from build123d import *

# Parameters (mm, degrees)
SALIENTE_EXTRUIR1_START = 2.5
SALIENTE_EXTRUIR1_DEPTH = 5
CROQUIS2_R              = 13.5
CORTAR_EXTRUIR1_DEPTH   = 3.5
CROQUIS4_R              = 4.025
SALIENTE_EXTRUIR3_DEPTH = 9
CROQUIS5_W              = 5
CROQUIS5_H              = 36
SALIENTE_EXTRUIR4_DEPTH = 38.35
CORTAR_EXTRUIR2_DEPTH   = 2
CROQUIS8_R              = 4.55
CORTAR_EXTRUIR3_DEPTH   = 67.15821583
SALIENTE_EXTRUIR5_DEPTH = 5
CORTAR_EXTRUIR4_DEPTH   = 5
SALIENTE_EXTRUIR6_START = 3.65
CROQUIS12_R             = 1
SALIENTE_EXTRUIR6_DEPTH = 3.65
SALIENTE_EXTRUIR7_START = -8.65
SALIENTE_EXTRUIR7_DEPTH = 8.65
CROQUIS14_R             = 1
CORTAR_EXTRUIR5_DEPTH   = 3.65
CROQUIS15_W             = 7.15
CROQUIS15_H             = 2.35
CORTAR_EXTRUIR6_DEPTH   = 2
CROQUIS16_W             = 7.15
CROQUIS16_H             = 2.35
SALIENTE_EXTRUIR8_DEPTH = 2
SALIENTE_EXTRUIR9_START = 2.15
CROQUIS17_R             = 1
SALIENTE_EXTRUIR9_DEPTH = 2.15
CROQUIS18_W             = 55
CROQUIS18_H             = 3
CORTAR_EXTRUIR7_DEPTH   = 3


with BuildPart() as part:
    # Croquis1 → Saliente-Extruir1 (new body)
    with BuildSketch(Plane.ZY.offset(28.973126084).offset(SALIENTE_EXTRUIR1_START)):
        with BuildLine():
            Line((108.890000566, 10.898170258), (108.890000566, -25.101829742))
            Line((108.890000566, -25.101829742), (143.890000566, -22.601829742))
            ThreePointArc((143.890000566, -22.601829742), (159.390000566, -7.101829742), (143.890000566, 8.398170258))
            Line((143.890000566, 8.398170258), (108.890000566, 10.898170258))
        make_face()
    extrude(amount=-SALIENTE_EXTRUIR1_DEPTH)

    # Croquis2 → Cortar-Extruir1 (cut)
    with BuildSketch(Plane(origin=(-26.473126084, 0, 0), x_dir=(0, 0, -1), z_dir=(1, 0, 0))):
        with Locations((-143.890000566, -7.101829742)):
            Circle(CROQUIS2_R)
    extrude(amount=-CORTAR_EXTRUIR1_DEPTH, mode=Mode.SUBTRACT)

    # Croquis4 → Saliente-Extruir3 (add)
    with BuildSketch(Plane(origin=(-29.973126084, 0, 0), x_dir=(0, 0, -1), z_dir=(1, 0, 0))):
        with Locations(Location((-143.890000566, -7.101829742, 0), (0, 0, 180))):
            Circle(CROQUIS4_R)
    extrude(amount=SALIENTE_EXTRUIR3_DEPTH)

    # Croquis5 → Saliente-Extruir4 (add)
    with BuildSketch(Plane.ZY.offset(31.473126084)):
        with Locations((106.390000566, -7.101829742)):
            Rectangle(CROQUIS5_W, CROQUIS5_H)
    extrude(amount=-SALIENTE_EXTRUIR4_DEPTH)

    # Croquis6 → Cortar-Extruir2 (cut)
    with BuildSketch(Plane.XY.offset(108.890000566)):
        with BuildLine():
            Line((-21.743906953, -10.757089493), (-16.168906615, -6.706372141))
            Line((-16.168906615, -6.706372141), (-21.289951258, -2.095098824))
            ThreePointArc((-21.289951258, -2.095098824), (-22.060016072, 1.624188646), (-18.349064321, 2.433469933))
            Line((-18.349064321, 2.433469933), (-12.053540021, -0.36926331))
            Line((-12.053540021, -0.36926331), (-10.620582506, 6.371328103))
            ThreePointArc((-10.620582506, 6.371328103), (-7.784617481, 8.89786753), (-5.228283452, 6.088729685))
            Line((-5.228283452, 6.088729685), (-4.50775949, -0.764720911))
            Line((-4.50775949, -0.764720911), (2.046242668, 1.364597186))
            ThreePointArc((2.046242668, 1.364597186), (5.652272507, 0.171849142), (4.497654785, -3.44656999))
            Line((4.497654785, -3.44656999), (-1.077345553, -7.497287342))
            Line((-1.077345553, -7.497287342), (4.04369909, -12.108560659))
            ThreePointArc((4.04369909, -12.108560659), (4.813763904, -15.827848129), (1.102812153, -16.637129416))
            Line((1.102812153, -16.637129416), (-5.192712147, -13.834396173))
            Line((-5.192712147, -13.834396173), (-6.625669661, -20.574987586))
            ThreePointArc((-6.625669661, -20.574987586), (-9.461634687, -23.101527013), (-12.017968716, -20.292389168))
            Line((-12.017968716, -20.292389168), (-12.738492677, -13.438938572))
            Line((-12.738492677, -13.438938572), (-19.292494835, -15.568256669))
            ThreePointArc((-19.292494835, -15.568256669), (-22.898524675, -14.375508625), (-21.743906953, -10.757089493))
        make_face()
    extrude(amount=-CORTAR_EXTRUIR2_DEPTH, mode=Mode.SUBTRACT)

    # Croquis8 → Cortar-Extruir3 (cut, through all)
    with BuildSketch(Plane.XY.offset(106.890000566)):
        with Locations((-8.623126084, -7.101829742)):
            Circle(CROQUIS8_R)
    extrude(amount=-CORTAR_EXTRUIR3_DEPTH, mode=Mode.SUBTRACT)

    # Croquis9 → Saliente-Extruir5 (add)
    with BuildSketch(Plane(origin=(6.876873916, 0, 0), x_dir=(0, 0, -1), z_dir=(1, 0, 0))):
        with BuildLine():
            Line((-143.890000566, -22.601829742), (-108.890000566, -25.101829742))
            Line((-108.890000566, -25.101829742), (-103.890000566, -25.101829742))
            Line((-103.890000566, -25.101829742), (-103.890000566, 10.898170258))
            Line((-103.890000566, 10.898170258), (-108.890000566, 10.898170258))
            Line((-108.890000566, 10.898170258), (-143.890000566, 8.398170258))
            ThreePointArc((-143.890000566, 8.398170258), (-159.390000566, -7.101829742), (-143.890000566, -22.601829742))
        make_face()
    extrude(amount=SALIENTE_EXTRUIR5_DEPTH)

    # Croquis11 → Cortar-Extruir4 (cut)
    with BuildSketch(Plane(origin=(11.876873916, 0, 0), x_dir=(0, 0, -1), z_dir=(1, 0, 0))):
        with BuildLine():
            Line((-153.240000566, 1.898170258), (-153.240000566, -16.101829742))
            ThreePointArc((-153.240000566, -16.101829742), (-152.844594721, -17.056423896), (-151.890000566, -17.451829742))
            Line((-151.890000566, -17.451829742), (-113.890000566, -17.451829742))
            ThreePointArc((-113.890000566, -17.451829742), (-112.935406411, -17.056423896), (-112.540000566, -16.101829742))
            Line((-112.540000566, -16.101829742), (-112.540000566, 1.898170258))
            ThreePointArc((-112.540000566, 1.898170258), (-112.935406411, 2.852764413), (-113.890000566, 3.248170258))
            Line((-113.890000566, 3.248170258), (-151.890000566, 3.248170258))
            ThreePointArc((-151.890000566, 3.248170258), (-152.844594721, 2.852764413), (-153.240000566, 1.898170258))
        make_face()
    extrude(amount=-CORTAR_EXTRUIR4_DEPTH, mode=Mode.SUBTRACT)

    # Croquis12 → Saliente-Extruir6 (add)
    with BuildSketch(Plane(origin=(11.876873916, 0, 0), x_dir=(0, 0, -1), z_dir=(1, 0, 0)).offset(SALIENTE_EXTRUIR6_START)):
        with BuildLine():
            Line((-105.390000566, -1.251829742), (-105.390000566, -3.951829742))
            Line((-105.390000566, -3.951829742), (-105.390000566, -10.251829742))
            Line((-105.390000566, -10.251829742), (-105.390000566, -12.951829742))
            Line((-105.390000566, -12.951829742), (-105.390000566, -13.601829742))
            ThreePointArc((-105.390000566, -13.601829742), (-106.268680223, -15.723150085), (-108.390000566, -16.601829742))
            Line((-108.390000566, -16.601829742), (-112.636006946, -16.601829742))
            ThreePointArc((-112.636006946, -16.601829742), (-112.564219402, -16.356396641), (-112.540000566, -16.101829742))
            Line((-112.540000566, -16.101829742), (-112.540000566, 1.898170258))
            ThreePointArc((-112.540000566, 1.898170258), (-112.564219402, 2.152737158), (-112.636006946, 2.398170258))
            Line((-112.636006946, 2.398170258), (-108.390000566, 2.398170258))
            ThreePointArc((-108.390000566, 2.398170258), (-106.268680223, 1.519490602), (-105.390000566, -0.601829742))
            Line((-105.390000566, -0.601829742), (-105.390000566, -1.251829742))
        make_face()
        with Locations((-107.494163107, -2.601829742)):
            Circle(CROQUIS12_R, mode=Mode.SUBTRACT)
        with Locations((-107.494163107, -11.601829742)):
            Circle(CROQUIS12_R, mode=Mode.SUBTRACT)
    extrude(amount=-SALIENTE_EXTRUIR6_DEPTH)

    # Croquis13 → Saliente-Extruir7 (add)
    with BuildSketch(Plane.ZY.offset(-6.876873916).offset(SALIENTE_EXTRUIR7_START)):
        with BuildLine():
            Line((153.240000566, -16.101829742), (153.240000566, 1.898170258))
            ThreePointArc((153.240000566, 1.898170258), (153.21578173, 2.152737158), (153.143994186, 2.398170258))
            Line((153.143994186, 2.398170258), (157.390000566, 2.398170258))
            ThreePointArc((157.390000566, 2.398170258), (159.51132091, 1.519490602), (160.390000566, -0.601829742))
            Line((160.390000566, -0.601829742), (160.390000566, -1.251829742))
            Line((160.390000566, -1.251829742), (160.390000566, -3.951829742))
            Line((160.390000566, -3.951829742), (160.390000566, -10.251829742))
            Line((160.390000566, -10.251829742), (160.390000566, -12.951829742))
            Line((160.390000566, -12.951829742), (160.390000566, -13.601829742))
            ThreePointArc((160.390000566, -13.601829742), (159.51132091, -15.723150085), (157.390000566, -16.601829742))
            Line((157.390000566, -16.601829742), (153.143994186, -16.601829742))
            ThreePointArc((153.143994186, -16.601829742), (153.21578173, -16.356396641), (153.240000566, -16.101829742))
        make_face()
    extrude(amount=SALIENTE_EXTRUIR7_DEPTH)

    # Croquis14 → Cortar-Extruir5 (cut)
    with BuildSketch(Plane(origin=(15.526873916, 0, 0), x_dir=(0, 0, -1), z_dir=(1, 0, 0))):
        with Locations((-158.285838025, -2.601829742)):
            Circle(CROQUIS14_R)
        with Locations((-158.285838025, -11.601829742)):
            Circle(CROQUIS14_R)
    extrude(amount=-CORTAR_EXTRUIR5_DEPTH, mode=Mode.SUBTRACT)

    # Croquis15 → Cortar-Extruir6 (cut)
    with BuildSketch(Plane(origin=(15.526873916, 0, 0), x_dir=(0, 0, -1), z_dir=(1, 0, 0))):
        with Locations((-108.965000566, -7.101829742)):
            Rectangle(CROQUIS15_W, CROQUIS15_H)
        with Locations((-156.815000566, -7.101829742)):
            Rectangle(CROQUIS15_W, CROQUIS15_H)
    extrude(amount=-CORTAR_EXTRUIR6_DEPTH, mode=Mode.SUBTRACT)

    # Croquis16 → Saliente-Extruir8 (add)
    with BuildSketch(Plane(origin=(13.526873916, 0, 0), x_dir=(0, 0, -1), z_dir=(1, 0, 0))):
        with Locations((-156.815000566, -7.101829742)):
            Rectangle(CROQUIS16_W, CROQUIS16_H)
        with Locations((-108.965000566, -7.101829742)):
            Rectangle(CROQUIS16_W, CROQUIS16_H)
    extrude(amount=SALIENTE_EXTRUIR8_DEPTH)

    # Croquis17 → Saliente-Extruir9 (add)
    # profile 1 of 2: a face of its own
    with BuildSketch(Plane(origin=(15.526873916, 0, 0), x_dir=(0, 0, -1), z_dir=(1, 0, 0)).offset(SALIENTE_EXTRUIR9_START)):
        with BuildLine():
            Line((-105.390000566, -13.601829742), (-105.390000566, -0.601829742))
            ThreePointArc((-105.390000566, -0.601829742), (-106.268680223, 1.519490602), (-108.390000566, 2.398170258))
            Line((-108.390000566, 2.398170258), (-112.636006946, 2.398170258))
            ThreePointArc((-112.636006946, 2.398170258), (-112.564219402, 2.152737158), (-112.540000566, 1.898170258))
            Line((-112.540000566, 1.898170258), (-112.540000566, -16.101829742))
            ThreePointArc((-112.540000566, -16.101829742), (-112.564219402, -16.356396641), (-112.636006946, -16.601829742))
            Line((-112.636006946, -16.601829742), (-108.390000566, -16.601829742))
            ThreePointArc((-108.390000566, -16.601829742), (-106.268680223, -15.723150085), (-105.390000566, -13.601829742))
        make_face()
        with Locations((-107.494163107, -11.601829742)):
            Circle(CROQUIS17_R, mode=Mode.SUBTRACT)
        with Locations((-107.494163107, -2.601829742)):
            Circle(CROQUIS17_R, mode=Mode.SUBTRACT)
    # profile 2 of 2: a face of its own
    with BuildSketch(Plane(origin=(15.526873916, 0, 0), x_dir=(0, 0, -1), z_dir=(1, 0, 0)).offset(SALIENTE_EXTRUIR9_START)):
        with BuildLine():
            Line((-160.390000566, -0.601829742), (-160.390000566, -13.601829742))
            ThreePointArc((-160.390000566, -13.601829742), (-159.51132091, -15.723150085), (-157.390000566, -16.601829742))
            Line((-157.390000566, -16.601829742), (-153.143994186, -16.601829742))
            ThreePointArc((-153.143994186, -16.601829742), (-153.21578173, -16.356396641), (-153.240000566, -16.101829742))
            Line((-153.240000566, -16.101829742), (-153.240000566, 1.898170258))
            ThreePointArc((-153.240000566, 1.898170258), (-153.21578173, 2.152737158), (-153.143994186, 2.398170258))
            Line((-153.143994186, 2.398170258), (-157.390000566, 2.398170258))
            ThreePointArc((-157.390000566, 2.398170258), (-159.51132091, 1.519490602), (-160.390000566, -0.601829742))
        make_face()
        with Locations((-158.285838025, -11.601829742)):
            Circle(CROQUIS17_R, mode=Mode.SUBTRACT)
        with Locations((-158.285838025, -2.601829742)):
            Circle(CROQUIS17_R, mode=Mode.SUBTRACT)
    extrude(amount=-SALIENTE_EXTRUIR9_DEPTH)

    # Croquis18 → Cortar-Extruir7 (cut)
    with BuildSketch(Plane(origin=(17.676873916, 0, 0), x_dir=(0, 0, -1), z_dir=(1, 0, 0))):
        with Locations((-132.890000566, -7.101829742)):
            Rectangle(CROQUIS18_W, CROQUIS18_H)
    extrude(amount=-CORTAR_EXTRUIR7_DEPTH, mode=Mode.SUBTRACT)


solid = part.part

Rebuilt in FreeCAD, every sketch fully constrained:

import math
import FreeCAD as App
import Part
import Sketcher

doc = App.newDocument("Part")
body = doc.addObject("PartDesign::Body", "Body")

sketch1 = body.newObject("Sketcher::SketchObject", "Sketch")
sketch1.AttachmentSupport = (doc.getObject("YZ_Plane"), [""])
sketch1.MapMode = "FlatFace"
sketch1.AttachmentOffset = App.Placement(App.Vector(0, 0, -31.473126), App.Rotation())
sketch1.addGeometry(Part.LineSegment(App.Vector(11, 109, 0), App.Vector(-25, 109, 0)), False)
sketch1.addGeometry(Part.LineSegment(App.Vector(-25, 109, 0), App.Vector(-23, 144, 0)), False)
sketch1.addGeometry(Part.ArcOfCircle(Part.Circle(App.Vector(-7, 144, 0), App.Vector(0, 0, 1), 16), math.radians(0), math.radians(180)), False)
sketch1.addGeometry(Part.LineSegment(App.Vector(8, 144, 0), App.Vector(11, 109, 0)), False)
sketch1.addConstraint(Sketcher.Constraint("Coincident", 0, 2, 1, 1))
sketch1.addConstraint(Sketcher.Constraint("Coincident", 1, 2, 2, 2))
sketch1.addConstraint(Sketcher.Constraint("Coincident", 2, 1, 3, 1))
sketch1.addConstraint(Sketcher.Constraint("Coincident", 3, 2, 0, 1))
sketch1.addConstraint(Sketcher.Constraint("Horizontal", 0))
sketch1.addConstraint(Sketcher.Constraint("Horizontal", 2, 3, 1, 2))
sketch1.addConstraint(Sketcher.Constraint("Horizontal", 1, 2, 2, 1))
sketch1.addConstraint(Sketcher.Constraint("Equal", 1, 3))
sketch1.addConstraint(Sketcher.Constraint("Radius", 2, 15.5))
sketch1.addConstraint(Sketcher.Constraint("DistanceX", 0, 2, 0, 1, 36.0))
sketch1.addConstraint(Sketcher.Constraint("DistanceY", 0, 2, 2, 3, 35.0))
sketch1.addConstraint(Sketcher.Constraint("DistanceY", -1, 1, 2, 3, 143.890001))
sketch1.addConstraint(Sketcher.Constraint("DistanceX", 2, 3, -1, 1, 7.10183))
pad1 = body.newObject("PartDesign::Pad", "Pad")
pad1.Profile = sketch1
pad1.Length = 5

sketch2 = body.newObject("Sketcher::SketchObject", "Sketch001")
sketch2.AttachmentSupport = (doc.getObject("YZ_Plane"), [""])
sketch2.MapMode = "FlatFace"
sketch2.AttachmentOffset = App.Placement(App.Vector(0, 0, -26.473126), App.Rotation())
sketch2.addGeometry(Part.Circle(App.Vector(-7, 144, 0), App.Vector(0, 0, 1), 14), False)
sketch2.addConstraint(Sketcher.Constraint("Diameter", 0, 27.0))
sketch2.addConstraint(Sketcher.Constraint("DistanceY", -1, 1, 0, 3, 143.890001))
sketch2.addConstraint(Sketcher.Constraint("DistanceX", 0, 3, -1, 1, 7.10183))
pocket1 = body.newObject("PartDesign::Pocket", "Pocket")
pocket1.Profile = sketch2
pocket1.Length = 3.5

sketch3 = body.newObject("Sketcher::SketchObject", "Sketch002")
sketch3.AttachmentSupport = (doc.getObject("YZ_Plane"), [""])
sketch3.MapMode = "FlatFace"
sketch3.AttachmentOffset = App.Placement(App.Vector(0, 0, -29.973126), App.Rotation())
sketch3.addGeometry(Part.Circle(App.Vector(-7.1, 143.9, 0), App.Vector(0, 0, 1), 4), False)
sketch3.addConstraint(Sketcher.Constraint("Diameter", 0, 8.05))
sketch3.addConstraint(Sketcher.Constraint("DistanceY", -1, 1, 0, 3, 143.890001))
sketch3.addConstraint(Sketcher.Constraint("DistanceX", 0, 3, -1, 1, 7.10183))
pad2 = body.newObject("PartDesign::Pad", "Pad001")
pad2.Profile = sketch3
pad2.Length = 9

sketch4 = body.newObject("Sketcher::SketchObject", "Sketch003")
sketch4.AttachmentSupport = (doc.getObject("YZ_Plane"), [""])
sketch4.MapMode = "FlatFace"
sketch4.AttachmentOffset = App.Placement(App.Vector(0, 0, -31.473126), App.Rotation())
sketch4.addGeometry(Part.LineSegment(App.Vector(11, 104, 0), App.Vector(-25, 104, 0)), False)
sketch4.addGeometry(Part.LineSegment(App.Vector(-25, 104, 0), App.Vector(-25, 109, 0)), False)
sketch4.addGeometry(Part.LineSegment(App.Vector(-25, 109, 0), App.Vector(11, 109, 0)), False)
sketch4.addGeometry(Part.LineSegment(App.Vector(11, 109, 0), App.Vector(11, 104, 0)), False)
sketch4.addConstraint(Sketcher.Constraint("Coincident", 0, 2, 1, 1))
sketch4.addConstraint(Sketcher.Constraint("Coincident", 1, 2, 2, 1))
sketch4.addConstraint(Sketcher.Constraint("Coincident", 2, 2, 3, 1))
sketch4.addConstraint(Sketcher.Constraint("Coincident", 3, 2, 0, 1))
sketch4.addConstraint(Sketcher.Constraint("Horizontal", 0))
sketch4.addConstraint(Sketcher.Constraint("Vertical", 1))
sketch4.addConstraint(Sketcher.Constraint("Horizontal", 2))
sketch4.addConstraint(Sketcher.Constraint("Vertical", 3))
sketch4.addConstraint(Sketcher.Constraint("DistanceX", 0, 2, 0, 1, 36.0))
sketch4.addConstraint(Sketcher.Constraint("DistanceY", 1, 1, 1, 2, 5.0))
sketch4.addConstraint(Sketcher.Constraint("DistanceY", -1, 1, 0, 2, 103.890001))
sketch4.addConstraint(Sketcher.Constraint("DistanceX", 0, 2, -1, 1, 25.10183))
pad3 = body.newObject("PartDesign::Pad", "Pad002")
pad3.Profile = sketch4
pad3.Length = 38.35

sketch5 = body.newObject("Sketcher::SketchObject", "Sketch004")
sketch5.AttachmentSupport = (doc.getObject("XY_Plane"), [""])
sketch5.MapMode = "FlatFace"
sketch5.AttachmentOffset = App.Placement(App.Vector(0, 0, 108.890001), App.Rotation())
sketch5.addGeometry(Part.LineSegment(App.Vector(-16.168907, -6.706372, 0), App.Vector(-21.743907, -10.757089, 0)), False)
sketch5.addGeometry(Part.ArcOfCircle(Part.Circle(App.Vector(-20.492807, -13.149734, 0), App.Vector(0, 0, 1), 2.7), math.radians(117.604804), math.radians(296.395196)), False)
sketch5.addGeometry(Part.LineSegment(App.Vector(-19.292495, -15.568257, 0), App.Vector(-12.738493, -13.438939, 0)), False)
sketch5.addGeometry(Part.LineSegment(App.Vector(-12.738493, -13.438939, 0), App.Vector(-12.017969, -20.292389, 0)), False)
sketch5.addGeometry(Part.ArcOfCircle(Part.Circle(App.Vector(-9.320328, -20.405227, 0), App.Vector(0, 0, 1), 2.7), math.radians(177.604804), math.radians(356.395196)), False)
sketch5.addGeometry(Part.LineSegment(App.Vector(-6.62567, -20.574988, 0), App.Vector(-5.192712, -13.834396, 0)), False)
sketch5.addGeometry(Part.LineSegment(App.Vector(-5.192712, -13.834396, 0), App.Vector(1.102812, -16.637129, 0)), False)
sketch5.addGeometry(Part.ArcOfCircle(Part.Circle(App.Vector(2.549353, -14.357323, 0), App.Vector(0, 0, 1), 2.7), math.radians(-122.395196), math.radians(56.395196)), False)
sketch5.addGeometry(Part.LineSegment(App.Vector(4.043699, -12.108561, 0), App.Vector(-1.077346, -7.497287, 0)), False)
sketch5.addGeometry(Part.LineSegment(App.Vector(-1.077346, -7.497287, 0), App.Vector(4.497655, -3.44657, 0)), False)
sketch5.addGeometry(Part.ArcOfCircle(Part.Circle(App.Vector(3.246555, -1.053925, 0), App.Vector(0, 0, 1), 2.7), math.radians(-62.395196), math.radians(116.395196)), False)
sketch5.addGeometry(Part.LineSegment(App.Vector(2.046243, 1.364597, 0), App.Vector(-4.507759, -0.764721, 0)), False)
sketch5.addGeometry(Part.LineSegment(App.Vector(-4.507759, -0.764721, 0), App.Vector(-5.228283, 6.08873, 0)), False)
sketch5.addGeometry(Part.ArcOfCircle(Part.Circle(App.Vector(-7.925925, 6.201568, 0), App.Vector(0, 0, 1), 2.7), math.radians(-2.395196), math.radians(176.395196)), False)
sketch5.addGeometry(Part.LineSegment(App.Vector(-10.620583, 6.371328, 0), App.Vector(-12.05354, -0.369263, 0)), False)
sketch5.addGeometry(Part.LineSegment(App.Vector(-12.05354, -0.369263, 0), App.Vector(-18.349064, 2.43347, 0)), False)
sketch5.addGeometry(Part.ArcOfCircle(Part.Circle(App.Vector(-19.795606, 0.153663, 0), App.Vector(0, 0, 1), 2.7), math.radians(57.604804), math.radians(236.395196)), False)
sketch5.addGeometry(Part.LineSegment(App.Vector(-21.289951, -2.095099, 0), App.Vector(-16.168907, -6.706372, 0)), False)
sketch5.addConstraint(Sketcher.Constraint("Coincident", 0, 2, 1, 1))
sketch5.addConstraint(Sketcher.Constraint("Coincident", 1, 2, 2, 1))
sketch5.addConstraint(Sketcher.Constraint("Coincident", 2, 2, 3, 1))
sketch5.addConstraint(Sketcher.Constraint("Coincident", 3, 2, 4, 1))
sketch5.addConstraint(Sketcher.Constraint("Coincident", 4, 2, 5, 1))
sketch5.addConstraint(Sketcher.Constraint("Coincident", 5, 2, 6, 1))
sketch5.addConstraint(Sketcher.Constraint("Coincident", 6, 2, 7, 1))
sketch5.addConstraint(Sketcher.Constraint("Coincident", 7, 2, 8, 1))
sketch5.addConstraint(Sketcher.Constraint("Coincident", 8, 2, 9, 1))
sketch5.addConstraint(Sketcher.Constraint("Coincident", 9, 2, 10, 1))
sketch5.addConstraint(Sketcher.Constraint("Coincident", 10, 2, 11, 1))
sketch5.addConstraint(Sketcher.Constraint("Coincident", 11, 2, 12, 1))
sketch5.addConstraint(Sketcher.Constraint("Coincident", 12, 2, 13, 1))
sketch5.addConstraint(Sketcher.Constraint("Coincident", 13, 2, 14, 1))
sketch5.addConstraint(Sketcher.Constraint("Coincident", 14, 2, 15, 1))
sketch5.addConstraint(Sketcher.Constraint("Coincident", 15, 2, 16, 1))
sketch5.addConstraint(Sketcher.Constraint("Coincident", 16, 2, 17, 1))
sketch5.addConstraint(Sketcher.Constraint("Coincident", 17, 2, 0, 1))
sketch5.addConstraint(Sketcher.Constraint("Equal", 1, 4))
sketch5.addConstraint(Sketcher.Constraint("Equal", 4, 7))
sketch5.addConstraint(Sketcher.Constraint("Equal", 7, 10))
sketch5.addConstraint(Sketcher.Constraint("Equal", 10, 13))
sketch5.addConstraint(Sketcher.Constraint("Equal", 13, 16))
sketch5.addConstraint(Sketcher.Constraint("Parallel", 0, 9))
sketch5.addConstraint(Sketcher.Constraint("Parallel", 2, 11))
sketch5.addConstraint(Sketcher.Constraint("Parallel", 3, 12))
sketch5.addConstraint(Sketcher.Constraint("Parallel", 5, 14))
sketch5.addConstraint(Sketcher.Constraint("Parallel", 6, 15))
sketch5.addConstraint(Sketcher.Constraint("Parallel", 8, 17))
sketch5.addConstraint(Sketcher.Constraint("Equal", 0, 2))
sketch5.addConstraint(Sketcher.Constraint("Equal", 2, 3))
sketch5.addConstraint(Sketcher.Constraint("Equal", 3, 5))
sketch5.addConstraint(Sketcher.Constraint("Equal", 5, 6))
sketch5.addConstraint(Sketcher.Constraint("Equal", 6, 8))
sketch5.addConstraint(Sketcher.Constraint("Equal", 8, 9))
sketch5.addConstraint(Sketcher.Constraint("Equal", 9, 11))
sketch5.addConstraint(Sketcher.Constraint("Equal", 11, 12))
sketch5.addConstraint(Sketcher.Constraint("Equal", 12, 14))
sketch5.addConstraint(Sketcher.Constraint("Equal", 14, 15))
sketch5.addConstraint(Sketcher.Constraint("Equal", 15, 17))
sketch5.addConstraint(Sketcher.Constraint("Radius", 1, 2.7))
sketch5.addConstraint(Sketcher.Constraint("DistanceX", 8, 2, 9, 2, 5.575))
sketch5.addConstraint(Sketcher.Constraint("DistanceX", -1, 1, 7, 2, 4.043699))
sketch5.addConstraint(Sketcher.Constraint("DistanceY", 16, 2, -1, 1, 2.095099))
sketch5.addConstraint(Sketcher.Constraint("DistanceX", 7, 3, 10, 3, 0.697202))
sketch5.addConstraint(Sketcher.Constraint("DistanceX", 1, 3, 16, 3, 0.697202))
sketch5.addConstraint(Sketcher.Constraint("DistanceX", 0, 2, 1, 3, 1.2511))
sketch5.addConstraint(Sketcher.Constraint("DistanceY", 3, 2, 0, 2, 9.5353))
sketch5.addConstraint(Sketcher.Constraint("DistanceX", 3, 2, 4, 2, 5.392299))
sketch5.addConstraint(Sketcher.Constraint("DistanceY", 4, 2, 3, 2, 0.282598))
sketch5.addConstraint(Sketcher.Constraint("DistanceX", 8, 2, 10, 3, 4.3239))
sketch5.addConstraint(Sketcher.Constraint("DistanceY", 9, 2, 12, 2, 9.5353))
sketch5.addConstraint(Sketcher.Constraint("DistanceX", 13, 2, 12, 2, 5.392299))
sketch5.addConstraint(Sketcher.Constraint("Distance", 0, 6.891222))
sketch5.addConstraint(Sketcher.Constraint("DistanceY", 0, 2, -1, 1, 10.757089))
sketch5.addConstraint(Sketcher.Constraint("DistanceY", 2, 2, -1, 1, 13.438939))
sketch5.addConstraint(Sketcher.Constraint("DistanceX", 3, 2, -1, 1, 12.017969))
sketch5.addConstraint(Sketcher.Constraint("DistanceY", 6, 2, -1, 1, 16.637129))
sketch5.addConstraint(Sketcher.Constraint("DistanceY", 7, 2, -1, 1, 12.108561))
sketch5.addConstraint(Sketcher.Constraint("DistanceX", 11, 2, -1, 1, 4.507759))
pocket2 = body.newObject("PartDesign::Pocket", "Pocket001")
pocket2.Profile = sketch5
pocket2.Length = 2

sketch6 = body.newObject("Sketcher::SketchObject", "Sketch005")
sketch6.AttachmentSupport = (doc.getObject("XY_Plane"), [""])
sketch6.MapMode = "FlatFace"
sketch6.AttachmentOffset = App.Placement(App.Vector(0, 0, 106.890001), App.Rotation())
sketch6.addGeometry(Part.Circle(App.Vector(-8.6, -7.1, 0), App.Vector(0, 0, 1), 4.5), False)
sketch6.addConstraint(Sketcher.Constraint("Diameter", 0, 9.1))
sketch6.addConstraint(Sketcher.Constraint("DistanceY", 0, 3, -1, 1, 7.10183))
sketch6.addConstraint(Sketcher.Constraint("DistanceX", 0, 3, -1, 1, 8.623126))
pocket3 = body.newObject("PartDesign::Pocket", "Pocket002")
pocket3.Profile = sketch6
pocket3.Type = "ThroughAll"

sketch7 = body.newObject("Sketcher::SketchObject", "Sketch006")
sketch7.AttachmentSupport = (doc.getObject("YZ_Plane"), [""])
sketch7.MapMode = "FlatFace"
sketch7.AttachmentOffset = App.Placement(App.Vector(0, 0, 6.876874), App.Rotation())
sketch7.addGeometry(Part.LineSegment(App.Vector(-23, 144, 0), App.Vector(-25, 109, 0)), False)
sketch7.addGeometry(Part.LineSegment(App.Vector(-25, 109, 0), App.Vector(-25, 104, 0)), False)
sketch7.addGeometry(Part.LineSegment(App.Vector(-25, 104, 0), App.Vector(11, 104, 0)), False)
sketch7.addGeometry(Part.LineSegment(App.Vector(11, 104, 0), App.Vector(11, 109, 0)), False)
sketch7.addGeometry(Part.LineSegment(App.Vector(11, 109, 0), App.Vector(8, 144, 0)), False)
sketch7.addGeometry(Part.ArcOfCircle(Part.Circle(App.Vector(-7, 144, 0), App.Vector(0, 0, 1), 16), math.radians(0), math.radians(180)), False)
sketch7.addConstraint(Sketcher.Constraint("Coincident", 0, 2, 1, 1))
sketch7.addConstraint(Sketcher.Constraint("Coincident", 1, 2, 2, 1))
sketch7.addConstraint(Sketcher.Constraint("Coincident", 2, 2, 3, 1))
sketch7.addConstraint(Sketcher.Constraint("Coincident", 3, 2, 4, 1))
sketch7.addConstraint(Sketcher.Constraint("Coincident", 4, 2, 5, 1))
sketch7.addConstraint(Sketcher.Constraint("Coincident", 5, 2, 0, 1))
sketch7.addConstraint(Sketcher.Constraint("Vertical", 1))
sketch7.addConstraint(Sketcher.Constraint("Horizontal", 2))
sketch7.addConstraint(Sketcher.Constraint("Vertical", 3))
sketch7.addConstraint(Sketcher.Constraint("Horizontal", 0, 2, 3, 2))
sketch7.addConstraint(Sketcher.Constraint("Horizontal", 5, 3, 4, 2))
sketch7.addConstraint(Sketcher.Constraint("Horizontal", 4, 2, 5, 2))
sketch7.addConstraint(Sketcher.Constraint("Equal", 0, 4))
sketch7.addConstraint(Sketcher.Constraint("Radius", 5, 15.5))
sketch7.addConstraint(Sketcher.Constraint("DistanceX", 2, 1, 2, 2, 36.0))
sketch7.addConstraint(Sketcher.Constraint("DistanceY", 1, 2, 1, 1, 5.0))
sketch7.addConstraint(Sketcher.Constraint("DistanceY", 0, 2, 5, 3, 35.0))
sketch7.addConstraint(Sketcher.Constraint("DistanceY", -1, 1, 5, 3, 143.890001))
sketch7.addConstraint(Sketcher.Constraint("DistanceX", 5, 3, -1, 1, 7.10183))
pad4 = body.newObject("PartDesign::Pad", "Pad003")
pad4.Profile = sketch7
pad4.Length = 5

sketch8 = body.newObject("Sketcher::SketchObject", "Sketch007")
sketch8.AttachmentSupport = (doc.getObject("YZ_Plane"), [""])
sketch8.MapMode = "FlatFace"
sketch8.AttachmentOffset = App.Placement(App.Vector(0, 0, 11.876874), App.Rotation())
sketch8.addGeometry(Part.LineSegment(App.Vector(1.9, 153.2, 0), App.Vector(-16.1, 153.2, 0)), False)
sketch8.addGeometry(Part.ArcOfCircle(Part.Circle(App.Vector(-16.1, 151.9, 0), App.Vector(0, 0, 1), 1.4), math.radians(90), math.radians(180)), False)
sketch8.addGeometry(Part.LineSegment(App.Vector(-17.5, 151.9, 0), App.Vector(-17.5, 113.9, 0)), False)
sketch8.addGeometry(Part.ArcOfCircle(Part.Circle(App.Vector(-16.1, 113.9, 0), App.Vector(0, 0, 1), 1.4), math.radians(180), math.radians(270)), False)
sketch8.addGeometry(Part.LineSegment(App.Vector(-16.1, 112.5, 0), App.Vector(1.9, 112.5, 0)), False)
sketch8.addGeometry(Part.ArcOfCircle(Part.Circle(App.Vector(1.9, 113.9, 0), App.Vector(0, 0, 1), 1.3), math.radians(-90), math.radians(0)), False)
sketch8.addGeometry(Part.LineSegment(App.Vector(3.2, 113.9, 0), App.Vector(3.2, 151.9, 0)), False)
sketch8.addGeometry(Part.ArcOfCircle(Part.Circle(App.Vector(1.9, 151.9, 0), App.Vector(0, 0, 1), 1.3), math.radians(0), math.radians(90)), False)
sketch8.addConstraint(Sketcher.Constraint("Tangent", 0, 2, 1, 1))
sketch8.addConstraint(Sketcher.Constraint("Tangent", 1, 2, 2, 1))
sketch8.addConstraint(Sketcher.Constraint("Tangent", 2, 2, 3, 1))
sketch8.addConstraint(Sketcher.Constraint("Tangent", 3, 2, 4, 1))
sketch8.addConstraint(Sketcher.Constraint("Tangent", 4, 2, 5, 1))
sketch8.addConstraint(Sketcher.Constraint("Tangent", 5, 2, 6, 1))
sketch8.addConstraint(Sketcher.Constraint("Tangent", 6, 2, 7, 1))
sketch8.addConstraint(Sketcher.Constraint("Tangent", 7, 2, 0, 1))
sketch8.addConstraint(Sketcher.Constraint("Horizontal", 0))
sketch8.addConstraint(Sketcher.Constraint("Vertical", 2))
sketch8.addConstraint(Sketcher.Constraint("Horizontal", 4))
sketch8.addConstraint(Sketcher.Constraint("Vertical", 6))
sketch8.addConstraint(Sketcher.Constraint("Equal", 1, 3))
sketch8.addConstraint(Sketcher.Constraint("Equal", 3, 5))
sketch8.addConstraint(Sketcher.Constraint("Equal", 5, 7))
sketch8.addConstraint(Sketcher.Constraint("DistanceX", 0, 2, 0, 1, 18.0))
sketch8.addConstraint(Sketcher.Constraint("DistanceY", 2, 2, 2, 1, 38.0))
sketch8.addConstraint(Sketcher.Constraint("Radius", 1, 1.35))
sketch8.addConstraint(Sketcher.Constraint("DistanceY", -1, 1, 1, 3, 151.890001))
sketch8.addConstraint(Sketcher.Constraint("DistanceX", 1, 3, -1, 1, 16.10183))
pocket4 = body.newObject("PartDesign::Pocket", "Pocket003")
pocket4.Profile = sketch8
pocket4.Length = 5

sketch9 = body.newObject("Sketcher::SketchObject", "Sketch008")
sketch9.AttachmentSupport = (doc.getObject("YZ_Plane"), [""])
sketch9.MapMode = "FlatFace"
sketch9.AttachmentOffset = App.Placement(App.Vector(0, 0, 15.526874), App.Rotation())
sketch9.addGeometry(Part.ArcOfCircle(Part.Circle(App.Vector(-13.6, 108.4, 0), App.Vector(0, 0, 1), 3), math.radians(-180), math.radians(-90)), False)
sketch9.addGeometry(Part.LineSegment(App.Vector(-13.6, 105.4, 0), App.Vector(-0.6, 105.4, 0)), False)
sketch9.addGeometry(Part.ArcOfCircle(Part.Circle(App.Vector(-0.6, 108.4, 0), App.Vector(0, 0, 1), 3), math.radians(-90), math.radians(0)), False)
sketch9.addGeometry(Part.LineSegment(App.Vector(2.4, 108.4, 0), App.Vector(2.4, 112.6, 0)), False)
sketch9.addGeometry(Part.ArcOfCircle(Part.Circle(App.Vector(1.9, 113.9, 0), App.Vector(0, 0, 1), 1.3), math.radians(-90), math.radians(-68)), False)
sketch9.addGeometry(Part.LineSegment(App.Vector(1.9, 112.5, 0), App.Vector(-16.1, 112.5, 0)), False)
sketch9.addGeometry(Part.ArcOfCircle(Part.Circle(App.Vector(-16.1, 113.9, 0), App.Vector(0, 0, 1), 1.3), math.radians(-112), math.radians(-90)), False)
sketch9.addGeometry(Part.LineSegment(App.Vector(-16.6, 112.6, 0), App.Vector(-16.6, 108.4, 0)), False)
sketch9.addGeometry(Part.Circle(App.Vector(-11.6, 107.5, 0), App.Vector(0, 0, 1), 1), False)
sketch9.addGeometry(Part.Circle(App.Vector(-2.6, 107.5, 0), App.Vector(0, 0, 1), 1), False)
sketch9.addConstraint(Sketcher.Constraint("Tangent", 0, 2, 1, 1))
sketch9.addConstraint(Sketcher.Constraint("Tangent", 1, 2, 2, 1))
sketch9.addConstraint(Sketcher.Constraint("Tangent", 2, 2, 3, 1))
sketch9.addConstraint(Sketcher.Constraint("Coincident", 3, 2, 4, 2))
sketch9.addConstraint(Sketcher.Constraint("Tangent", 4, 1, 5, 1))
sketch9.addConstraint(Sketcher.Constraint("Tangent", 5, 2, 6, 2))
sketch9.addConstraint(Sketcher.Constraint("Coincident", 6, 1, 7, 1))
sketch9.addConstraint(Sketcher.Constraint("Tangent", 7, 2, 0, 1))
sketch9.addConstraint(Sketcher.Constraint("Horizontal", 1))
sketch9.addConstraint(Sketcher.Constraint("Vertical", 3))
sketch9.addConstraint(Sketcher.Constraint("Horizontal", 5))
sketch9.addConstraint(Sketcher.Constraint("Vertical", 7))
sketch9.addConstraint(Sketcher.Constraint("Equal", 0, 2))
sketch9.addConstraint(Sketcher.Constraint("Equal", 4, 6))
sketch9.addConstraint(Sketcher.Constraint("Equal", 8, 9))
sketch9.addConstraint(Sketcher.Constraint("Horizontal", 8, 3, 9, 3))
sketch9.addConstraint(Sketcher.Constraint("Horizontal", 3, 2, 6, 1))
sketch9.addConstraint(Sketcher.Constraint("Diameter", 8, 2.0))
sketch9.addConstraint(Sketcher.Constraint("Radius", 0, 3.0))
sketch9.addConstraint(Sketcher.Constraint("DistanceX", 1, 1, 1, 2, 13.0))
sketch9.addConstraint(Sketcher.Constraint("DistanceX", 5, 2, 5, 1, 18.0))
sketch9.addConstraint(Sketcher.Constraint("Radius", 4, 1.35))
sketch9.addConstraint(Sketcher.Constraint("DistanceX", 0, 3, 8, 3, 2.0))
sketch9.addConstraint(Sketcher.Constraint("DistanceX", 9, 3, 2, 3, 2.0))
sketch9.addConstraint(Sketcher.Constraint("DistanceY", 2, 3, 4, 3, 5.5))
sketch9.addConstraint(Sketcher.Constraint("DistanceY", -1, 1, 0, 3, 108.390001))
sketch9.addConstraint(Sketcher.Constraint("DistanceX", 0, 3, -1, 1, 13.60183))
sketch9.addConstraint(Sketcher.Constraint("DistanceY", -1, 1, 8, 3, 107.494163))
pad5 = body.newObject("PartDesign::Pad", "Pad004")
pad5.Profile = sketch9
pad5.Length = 3.65
pad5.Reversed = True

sketch10 = body.newObject("Sketcher::SketchObject", "Sketch009")
sketch10.AttachmentSupport = (doc.getObject("YZ_Plane"), [""])
sketch10.MapMode = "FlatFace"
sketch10.AttachmentOffset = App.Placement(App.Vector(0, 0, 15.526874), App.Rotation())
sketch10.addGeometry(Part.LineSegment(App.Vector(1.9, 153.2, 0), App.Vector(-16.1, 153.2, 0)), False)
sketch10.addGeometry(Part.ArcOfCircle(Part.Circle(App.Vector(-16.1, 151.9, 0), App.Vector(0, 0, 1), 1.3), math.radians(90), math.radians(112)), False)
sketch10.addGeometry(Part.LineSegment(App.Vector(-16.6, 153.1, 0), App.Vector(-16.6, 157.4, 0)), False)
sketch10.addGeometry(Part.ArcOfCircle(Part.Circle(App.Vector(-13.6, 157.4, 0), App.Vector(0, 0, 1), 3), math.radians(90), math.radians(180)), False)
sketch10.addGeometry(Part.LineSegment(App.Vector(-13.6, 160.4, 0), App.Vector(-0.6, 160.4, 0)), False)
sketch10.addGeometry(Part.ArcOfCircle(Part.Circle(App.Vector(-0.6, 157.4, 0), App.Vector(0, 0, 1), 3), math.radians(0), math.radians(90)), False)
sketch10.addGeometry(Part.LineSegment(App.Vector(2.4, 157.4, 0), App.Vector(2.4, 153.1, 0)), False)
sketch10.addGeometry(Part.ArcOfCircle(Part.Circle(App.Vector(1.9, 151.9, 0), App.Vector(0, 0, 1), 1.3), math.radians(68), math.radians(90)), False)
sketch10.addConstraint(Sketcher.Constraint("Tangent", 0, 2, 1, 1))
sketch10.addConstraint(Sketcher.Constraint("Coincident", 1, 2, 2, 1))
sketch10.addConstraint(Sketcher.Constraint("Tangent", 2, 2, 3, 2))
sketch10.addConstraint(Sketcher.Constraint("Tangent", 3, 1, 4, 1))
sketch10.addConstraint(Sketcher.Constraint("Tangent", 4, 2, 5, 2))
sketch10.addConstraint(Sketcher.Constraint("Tangent", 5, 1, 6, 1))
sketch10.addConstraint(Sketcher.Constraint("Coincident", 6, 2, 7, 1))
sketch10.addConstraint(Sketcher.Constraint("Tangent", 7, 2, 0, 1))
sketch10.addConstraint(Sketcher.Constraint("Horizontal", 0))
sketch10.addConstraint(Sketcher.Constraint("Vertical", 2))
sketch10.addConstraint(Sketcher.Constraint("Horizontal", 4))
sketch10.addConstraint(Sketcher.Constraint("Vertical", 6))
sketch10.addConstraint(Sketcher.Constraint("Equal", 3, 5))
sketch10.addConstraint(Sketcher.Constraint("Equal", 1, 7))
sketch10.addConstraint(Sketcher.Constraint("Horizontal", 1, 2, 6, 2))
sketch10.addConstraint(Sketcher.Constraint("Radius", 3, 3.0))
sketch10.addConstraint(Sketcher.Constraint("DistanceX", 0, 2, 0, 1, 18.0))
sketch10.addConstraint(Sketcher.Constraint("DistanceX", 4, 1, 4, 2, 13.0))
sketch10.addConstraint(Sketcher.Constraint("Radius", 1, 1.35))
sketch10.addConstraint(Sketcher.Constraint("DistanceY", 1, 3, 3, 3, 5.5))
sketch10.addConstraint(Sketcher.Constraint("DistanceY", -1, 1, 1, 3, 151.890001))
sketch10.addConstraint(Sketcher.Constraint("DistanceX", 1, 3, -1, 1, 16.10183))
pad6 = body.newObject("PartDesign::Pad", "Pad005")
pad6.Profile = sketch10
pad6.Length = 8.65
pad6.Reversed = True

sketch11 = body.newObject("Sketcher::SketchObject", "Sketch010")
sketch11.AttachmentSupport = (doc.getObject("YZ_Plane"), [""])
sketch11.MapMode = "FlatFace"
sketch11.AttachmentOffset = App.Placement(App.Vector(0, 0, 15.526874), App.Rotation())
sketch11.addGeometry(Part.Circle(App.Vector(-2.6, 158.3, 0), App.Vector(0, 0, 1), 1), False)
sketch11.addGeometry(Part.Circle(App.Vector(-11.6, 158.3, 0), App.Vector(0, 0, 1), 1), False)
sketch11.addConstraint(Sketcher.Constraint("Equal", 0, 1))
sketch11.addConstraint(Sketcher.Constraint("Horizontal", 0, 3, 1, 3))
sketch11.addConstraint(Sketcher.Constraint("Diameter", 0, 2.0))
sketch11.addConstraint(Sketcher.Constraint("DistanceX", 1, 3, 0, 3, 9.0))
sketch11.addConstraint(Sketcher.Constraint("DistanceX", 0, 3, -1, 1, 2.60183))
sketch11.addConstraint(Sketcher.Constraint("DistanceY", -1, 1, 0, 3, 158.285838))
pocket5 = body.newObject("PartDesign::Pocket", "Pocket004")
pocket5.Profile = sketch11
pocket5.Length = 3.65

sketch12 = body.newObject("Sketcher::SketchObject", "Sketch011")
sketch12.AttachmentSupport = (doc.getObject("YZ_Plane"), [""])
sketch12.MapMode = "FlatFace"
sketch12.AttachmentOffset = App.Placement(App.Vector(0, 0, 15.526874), App.Rotation())
sketch12.addGeometry(Part.LineSegment(App.Vector(-5.9, 112.5, 0), App.Vector(-8.3, 112.5, 0)), False)
sketch12.addGeometry(Part.LineSegment(App.Vector(-8.3, 112.5, 0), App.Vector(-8.3, 105.4, 0)), False)
sketch12.addGeometry(Part.LineSegment(App.Vector(-8.3, 105.4, 0), App.Vector(-5.9, 105.4, 0)), False)
sketch12.addGeometry(Part.LineSegment(App.Vector(-5.9, 105.4, 0), App.Vector(-5.9, 112.5, 0)), False)
sketch12.addGeometry(Part.LineSegment(App.Vector(-5.9, 160.4, 0), App.Vector(-8.3, 160.4, 0)), False)
sketch12.addGeometry(Part.LineSegment(App.Vector(-8.3, 160.4, 0), App.Vector(-8.3, 153.2, 0)), False)
sketch12.addGeometry(Part.LineSegment(App.Vector(-8.3, 153.2, 0), App.Vector(-5.9, 153.2, 0)), False)
sketch12.addGeometry(Part.LineSegment(App.Vector(-5.9, 153.2, 0), App.Vector(-5.9, 160.4, 0)), False)
sketch12.addConstraint(Sketcher.Constraint("Coincident", 0, 2, 1, 1))
sketch12.addConstraint(Sketcher.Constraint("Coincident", 1, 2, 2, 1))
sketch12.addConstraint(Sketcher.Constraint("Coincident", 2, 2, 3, 1))
sketch12.addConstraint(Sketcher.Constraint("Coincident", 3, 2, 0, 1))
sketch12.addConstraint(Sketcher.Constraint("Coincident", 4, 2, 5, 1))
sketch12.addConstraint(Sketcher.Constraint("Coincident", 5, 2, 6, 1))
sketch12.addConstraint(Sketcher.Constraint("Coincident", 6, 2, 7, 1))
sketch12.addConstraint(Sketcher.Constraint("Coincident", 7, 2, 4, 1))
sketch12.addConstraint(Sketcher.Constraint("Horizontal", 0))
sketch12.addConstraint(Sketcher.Constraint("Vertical", 1))
sketch12.addConstraint(Sketcher.Constraint("Horizontal", 2))
sketch12.addConstraint(Sketcher.Constraint("Vertical", 3))
sketch12.addConstraint(Sketcher.Constraint("Horizontal", 4))
sketch12.addConstraint(Sketcher.Constraint("Vertical", 5))
sketch12.addConstraint(Sketcher.Constraint("Horizontal", 6))
sketch12.addConstraint(Sketcher.Constraint("Vertical", 7))
sketch12.addConstraint(Sketcher.Constraint("Vertical", 1, 2, 4, 2))
sketch12.addConstraint(Sketcher.Constraint("Vertical", 3, 2, 6, 2))
sketch12.addConstraint(Sketcher.Constraint("Equal", 3, 5))
sketch12.addConstraint(Sketcher.Constraint("DistanceY", 1, 2, 4, 2, 55.0))
sketch12.addConstraint(Sketcher.Constraint("DistanceX", 0, 2, 0, 1, 2.35))
sketch12.addConstraint(Sketcher.Constraint("DistanceY", 1, 2, 1, 1, 7.15))
sketch12.addConstraint(Sketcher.Constraint("DistanceY", -1, 1, 0, 2, 112.540001))
sketch12.addConstraint(Sketcher.Constraint("DistanceX", 0, 2, -1, 1, 8.27683))
pocket6 = body.newObject("PartDesign::Pocket", "Pocket005")
pocket6.Profile = sketch12
pocket6.Length = 2

sketch13 = body.newObject("Sketcher::SketchObject", "Sketch012")
sketch13.AttachmentSupport = (doc.getObject("YZ_Plane"), [""])
sketch13.MapMode = "FlatFace"
sketch13.AttachmentOffset = App.Placement(App.Vector(0, 0, 13.526874), App.Rotation())
sketch13.addGeometry(Part.LineSegment(App.Vector(-5.9, 160.4, 0), App.Vector(-8.3, 160.4, 0)), False)
sketch13.addGeometry(Part.LineSegment(App.Vector(-8.3, 160.4, 0), App.Vector(-8.3, 153.2, 0)), False)
sketch13.addGeometry(Part.LineSegment(App.Vector(-8.3, 153.2, 0), App.Vector(-5.9, 153.2, 0)), False)
sketch13.addGeometry(Part.LineSegment(App.Vector(-5.9, 153.2, 0), App.Vector(-5.9, 160.4, 0)), False)
sketch13.addGeometry(Part.LineSegment(App.Vector(-5.9, 112.5, 0), App.Vector(-8.3, 112.5, 0)), False)
sketch13.addGeometry(Part.LineSegment(App.Vector(-8.3, 112.5, 0), App.Vector(-8.3, 105.4, 0)), False)
sketch13.addGeometry(Part.LineSegment(App.Vector(-8.3, 105.4, 0), App.Vector(-5.9, 105.4, 0)), False)
sketch13.addGeometry(Part.LineSegment(App.Vector(-5.9, 105.4, 0), App.Vector(-5.9, 112.5, 0)), False)
sketch13.addConstraint(Sketcher.Constraint("Coincident", 0, 2, 1, 1))
sketch13.addConstraint(Sketcher.Constraint("Coincident", 1, 2, 2, 1))
sketch13.addConstraint(Sketcher.Constraint("Coincident", 2, 2, 3, 1))
sketch13.addConstraint(Sketcher.Constraint("Coincident", 3, 2, 0, 1))
sketch13.addConstraint(Sketcher.Constraint("Coincident", 4, 2, 5, 1))
sketch13.addConstraint(Sketcher.Constraint("Coincident", 5, 2, 6, 1))
sketch13.addConstraint(Sketcher.Constraint("Coincident", 6, 2, 7, 1))
sketch13.addConstraint(Sketcher.Constraint("Coincident", 7, 2, 4, 1))
sketch13.addConstraint(Sketcher.Constraint("Horizontal", 0))
sketch13.addConstraint(Sketcher.Constraint("Vertical", 1))
sketch13.addConstraint(Sketcher.Constraint("Horizontal", 2))
sketch13.addConstraint(Sketcher.Constraint("Vertical", 3))
sketch13.addConstraint(Sketcher.Constraint("Horizontal", 4))
sketch13.addConstraint(Sketcher.Constraint("Vertical", 5))
sketch13.addConstraint(Sketcher.Constraint("Horizontal", 6))
sketch13.addConstraint(Sketcher.Constraint("Vertical", 7))
sketch13.addConstraint(Sketcher.Constraint("Vertical", 1, 2, 4, 2))
sketch13.addConstraint(Sketcher.Constraint("Vertical", 3, 2, 6, 2))
sketch13.addConstraint(Sketcher.Constraint("Equal", 3, 5))
sketch13.addConstraint(Sketcher.Constraint("DistanceY", 5, 2, 0, 2, 55.0))
sketch13.addConstraint(Sketcher.Constraint("DistanceX", 0, 2, 0, 1, 2.35))
sketch13.addConstraint(Sketcher.Constraint("DistanceY", 1, 2, 1, 1, 7.15))
sketch13.addConstraint(Sketcher.Constraint("DistanceY", -1, 1, 0, 2, 160.390001))
sketch13.addConstraint(Sketcher.Constraint("DistanceX", 0, 2, -1, 1, 8.27683))
pad7 = body.newObject("PartDesign::Pad", "Pad006")
pad7.Profile = sketch13
pad7.Length = 2

sketch14 = body.newObject("Sketcher::SketchObject", "Sketch013")
sketch14.AttachmentSupport = (doc.getObject("YZ_Plane"), [""])
sketch14.MapMode = "FlatFace"
sketch14.AttachmentOffset = App.Placement(App.Vector(0, 0, 17.676874), App.Rotation())
sketch14.addGeometry(Part.LineSegment(App.Vector(-13.6, 105.4, 0), App.Vector(-0.6, 105.4, 0)), False)
sketch14.addGeometry(Part.ArcOfCircle(Part.Circle(App.Vector(-0.6, 108.4, 0), App.Vector(0, 0, 1), 3), math.radians(-90), math.radians(0)), False)
sketch14.addGeometry(Part.LineSegment(App.Vector(2.4, 108.4, 0), App.Vector(2.4, 112.6, 0)), False)
sketch14.addGeometry(Part.ArcOfCircle(Part.Circle(App.Vector(1.9, 113.9, 0), App.Vector(0, 0, 1), 1.3), math.radians(-90), math.radians(-68)), False)
sketch14.addGeometry(Part.LineSegment(App.Vector(1.9, 112.5, 0), App.Vector(-16.1, 112.5, 0)), False)
sketch14.addGeometry(Part.ArcOfCircle(Part.Circle(App.Vector(-16.1, 113.9, 0), App.Vector(0, 0, 1), 1.3), math.radians(-112), math.radians(-90)), False)
sketch14.addGeometry(Part.LineSegment(App.Vector(-16.6, 112.6, 0), App.Vector(-16.6, 108.4, 0)), False)
sketch14.addGeometry(Part.ArcOfCircle(Part.Circle(App.Vector(-13.6, 108.4, 0), App.Vector(0, 0, 1), 3), math.radians(-180), math.radians(-90)), False)
sketch14.addGeometry(Part.Circle(App.Vector(-11.6, 107.5, 0), App.Vector(0, 0, 1), 1), False)
sketch14.addGeometry(Part.Circle(App.Vector(-2.6, 107.5, 0), App.Vector(0, 0, 1), 1), False)
sketch14.addGeometry(Part.LineSegment(App.Vector(-0.6, 160.4, 0), App.Vector(-13.6, 160.4, 0)), False)
sketch14.addGeometry(Part.ArcOfCircle(Part.Circle(App.Vector(-13.6, 157.4, 0), App.Vector(0, 0, 1), 3), math.radians(90), math.radians(180)), False)
sketch14.addGeometry(Part.LineSegment(App.Vector(-16.6, 157.4, 0), App.Vector(-16.6, 153.1, 0)), False)
sketch14.addGeometry(Part.ArcOfCircle(Part.Circle(App.Vector(-16.1, 151.9, 0), App.Vector(0, 0, 1), 1.3), math.radians(90), math.radians(112)), False)
sketch14.addGeometry(Part.LineSegment(App.Vector(-16.1, 153.2, 0), App.Vector(1.9, 153.2, 0)), False)
sketch14.addGeometry(Part.ArcOfCircle(Part.Circle(App.Vector(1.9, 151.9, 0), App.Vector(0, 0, 1), 1.3), math.radians(68), math.radians(90)), False)
sketch14.addGeometry(Part.LineSegment(App.Vector(2.4, 153.1, 0), App.Vector(2.4, 157.4, 0)), False)
sketch14.addGeometry(Part.ArcOfCircle(Part.Circle(App.Vector(-0.6, 157.4, 0), App.Vector(0, 0, 1), 3), math.radians(0), math.radians(90)), False)
sketch14.addGeometry(Part.Circle(App.Vector(-11.6, 158.3, 0), App.Vector(0, 0, 1), 1), False)
sketch14.addGeometry(Part.Circle(App.Vector(-2.6, 158.3, 0), App.Vector(0, 0, 1), 1), False)
sketch14.addConstraint(Sketcher.Constraint("Tangent", 0, 2, 1, 1))
sketch14.addConstraint(Sketcher.Constraint("Tangent", 1, 2, 2, 1))
sketch14.addConstraint(Sketcher.Constraint("Coincident", 2, 2, 3, 2))
sketch14.addConstraint(Sketcher.Constraint("Tangent", 3, 1, 4, 1))
sketch14.addConstraint(Sketcher.Constraint("Tangent", 4, 2, 5, 2))
sketch14.addConstraint(Sketcher.Constraint("Coincident", 5, 1, 6, 1))
sketch14.addConstraint(Sketcher.Constraint("Tangent", 6, 2, 7, 1))
sketch14.addConstraint(Sketcher.Constraint("Tangent", 7, 2, 0, 1))
sketch14.addConstraint(Sketcher.Constraint("Tangent", 10, 2, 11, 1))
sketch14.addConstraint(Sketcher.Constraint("Tangent", 11, 2, 12, 1))
sketch14.addConstraint(Sketcher.Constraint("Coincident", 12, 2, 13, 2))
sketch14.addConstraint(Sketcher.Constraint("Tangent", 13, 1, 14, 1))
sketch14.addConstraint(Sketcher.Constraint("Tangent", 14, 2, 15, 2))
sketch14.addConstraint(Sketcher.Constraint("Coincident", 15, 1, 16, 1))
sketch14.addConstraint(Sketcher.Constraint("Tangent", 16, 2, 17, 1))
sketch14.addConstraint(Sketcher.Constraint("Tangent", 17, 2, 10, 1))
sketch14.addConstraint(Sketcher.Constraint("Horizontal", 0))
sketch14.addConstraint(Sketcher.Constraint("Vertical", 2))
sketch14.addConstraint(Sketcher.Constraint("Horizontal", 4))
sketch14.addConstraint(Sketcher.Constraint("Vertical", 6))
sketch14.addConstraint(Sketcher.Constraint("Horizontal", 10))
sketch14.addConstraint(Sketcher.Constraint("Vertical", 12))
sketch14.addConstraint(Sketcher.Constraint("Horizontal", 14))
sketch14.addConstraint(Sketcher.Constraint("Vertical", 16))
sketch14.addConstraint(Sketcher.Constraint("Equal", 3, 5))
sketch14.addConstraint(Sketcher.Constraint("Equal", 1, 7))
sketch14.addConstraint(Sketcher.Constraint("Equal", 8, 9))
sketch14.addConstraint(Sketcher.Constraint("Equal", 7, 11))
sketch14.addConstraint(Sketcher.Constraint("Equal", 5, 13))
sketch14.addConstraint(Sketcher.Constraint("Equal", 13, 15))
sketch14.addConstraint(Sketcher.Constraint("Equal", 11, 17))
sketch14.addConstraint(Sketcher.Constraint("Equal", 9, 18))
sketch14.addConstraint(Sketcher.Constraint("Equal", 18, 19))
sketch14.addConstraint(Sketcher.Constraint("Horizontal", 8, 3, 9, 3))
sketch14.addConstraint(Sketcher.Constraint("Horizontal", 18, 3, 19, 3))
sketch14.addConstraint(Sketcher.Constraint("Horizontal", 2, 2, 5, 1))
sketch14.addConstraint(Sketcher.Constraint("Horizontal", 12, 2, 15, 1))
sketch14.addConstraint(Sketcher.Constraint("Vertical", 7, 3, 11, 3))
sketch14.addConstraint(Sketcher.Constraint("Vertical", 5, 3, 13, 3))
sketch14.addConstraint(Sketcher.Constraint("Vertical", 3, 3, 15, 3))
sketch14.addConstraint(Sketcher.Constraint("Vertical", 8, 3, 18, 3))
sketch14.addConstraint(Sketcher.Constraint("Vertical", 9, 3, 19, 3))
sketch14.addConstraint(Sketcher.Constraint("Equal", 6, 12))
sketch14.addConstraint(Sketcher.Constraint("Diameter", 8, 2.0))
sketch14.addConstraint(Sketcher.Constraint("Radius", 1, 3.0))
sketch14.addConstraint(Sketcher.Constraint("DistanceX", 0, 1, 0, 2, 13.0))
sketch14.addConstraint(Sketcher.Constraint("DistanceX", 4, 2, 4, 1, 18.0))
sketch14.addConstraint(Sketcher.Constraint("Radius", 3, 1.35))
sketch14.addConstraint(Sketcher.Constraint("DistanceX", 7, 3, 8, 3, 2.0))
sketch14.addConstraint(Sketcher.Constraint("DistanceX", 9, 3, 1, 3, 2.0))
sketch14.addConstraint(Sketcher.Constraint("DistanceY", 7, 3, 11, 3, 49.0))
sketch14.addConstraint(Sketcher.Constraint("DistanceY", 5, 3, 13, 3, 38.0))
sketch14.addConstraint(Sketcher.Constraint("DistanceY", -1, 1, 1, 3, 108.390001))
sketch14.addConstraint(Sketcher.Constraint("DistanceX", 1, 3, -1, 1, 0.60183))
sketch14.addConstraint(Sketcher.Constraint("DistanceY", -1, 1, 18, 3, 158.285838))
sketch14.addConstraint(Sketcher.Constraint("DistanceY", -1, 1, 8, 3, 107.494163))
pad8 = body.newObject("PartDesign::Pad", "Pad007")
pad8.Profile = sketch14
pad8.Length = 2.15
pad8.Reversed = True

sketch15 = body.newObject("Sketcher::SketchObject", "Sketch014")
sketch15.AttachmentSupport = (doc.getObject("YZ_Plane"), [""])
sketch15.MapMode = "FlatFace"
sketch15.AttachmentOffset = App.Placement(App.Vector(0, 0, 17.676874), App.Rotation())
sketch15.addGeometry(Part.LineSegment(App.Vector(-5.6, 160.4, 0), App.Vector(-8.6, 160.4, 0)), False)
sketch15.addGeometry(Part.LineSegment(App.Vector(-8.6, 160.4, 0), App.Vector(-8.6, 105.4, 0)), False)
sketch15.addGeometry(Part.LineSegment(App.Vector(-8.6, 105.4, 0), App.Vector(-5.6, 105.4, 0)), False)
sketch15.addGeometry(Part.LineSegment(App.Vector(-5.6, 105.4, 0), App.Vector(-5.6, 160.4, 0)), False)
sketch15.addConstraint(Sketcher.Constraint("Coincident", 0, 2, 1, 1))
sketch15.addConstraint(Sketcher.Constraint("Coincident", 1, 2, 2, 1))
sketch15.addConstraint(Sketcher.Constraint("Coincident", 2, 2, 3, 1))
sketch15.addConstraint(Sketcher.Constraint("Coincident", 3, 2, 0, 1))
sketch15.addConstraint(Sketcher.Constraint("Horizontal", 0))
sketch15.addConstraint(Sketcher.Constraint("Vertical", 1))
sketch15.addConstraint(Sketcher.Constraint("Horizontal", 2))
sketch15.addConstraint(Sketcher.Constraint("Vertical", 3))
sketch15.addConstraint(Sketcher.Constraint("DistanceX", 0, 2, 0, 1, 3.0))
sketch15.addConstraint(Sketcher.Constraint("DistanceY", 1, 2, 1, 1, 55.0))
sketch15.addConstraint(Sketcher.Constraint("DistanceY", -1, 1, 0, 2, 160.390001))
sketch15.addConstraint(Sketcher.Constraint("DistanceX", 0, 2, -1, 1, 8.60183))
pocket7 = body.newObject("PartDesign::Pocket", "Pocket006")
pocket7.Profile = sketch15
pocket7.Length = 3

doc.recompute()
